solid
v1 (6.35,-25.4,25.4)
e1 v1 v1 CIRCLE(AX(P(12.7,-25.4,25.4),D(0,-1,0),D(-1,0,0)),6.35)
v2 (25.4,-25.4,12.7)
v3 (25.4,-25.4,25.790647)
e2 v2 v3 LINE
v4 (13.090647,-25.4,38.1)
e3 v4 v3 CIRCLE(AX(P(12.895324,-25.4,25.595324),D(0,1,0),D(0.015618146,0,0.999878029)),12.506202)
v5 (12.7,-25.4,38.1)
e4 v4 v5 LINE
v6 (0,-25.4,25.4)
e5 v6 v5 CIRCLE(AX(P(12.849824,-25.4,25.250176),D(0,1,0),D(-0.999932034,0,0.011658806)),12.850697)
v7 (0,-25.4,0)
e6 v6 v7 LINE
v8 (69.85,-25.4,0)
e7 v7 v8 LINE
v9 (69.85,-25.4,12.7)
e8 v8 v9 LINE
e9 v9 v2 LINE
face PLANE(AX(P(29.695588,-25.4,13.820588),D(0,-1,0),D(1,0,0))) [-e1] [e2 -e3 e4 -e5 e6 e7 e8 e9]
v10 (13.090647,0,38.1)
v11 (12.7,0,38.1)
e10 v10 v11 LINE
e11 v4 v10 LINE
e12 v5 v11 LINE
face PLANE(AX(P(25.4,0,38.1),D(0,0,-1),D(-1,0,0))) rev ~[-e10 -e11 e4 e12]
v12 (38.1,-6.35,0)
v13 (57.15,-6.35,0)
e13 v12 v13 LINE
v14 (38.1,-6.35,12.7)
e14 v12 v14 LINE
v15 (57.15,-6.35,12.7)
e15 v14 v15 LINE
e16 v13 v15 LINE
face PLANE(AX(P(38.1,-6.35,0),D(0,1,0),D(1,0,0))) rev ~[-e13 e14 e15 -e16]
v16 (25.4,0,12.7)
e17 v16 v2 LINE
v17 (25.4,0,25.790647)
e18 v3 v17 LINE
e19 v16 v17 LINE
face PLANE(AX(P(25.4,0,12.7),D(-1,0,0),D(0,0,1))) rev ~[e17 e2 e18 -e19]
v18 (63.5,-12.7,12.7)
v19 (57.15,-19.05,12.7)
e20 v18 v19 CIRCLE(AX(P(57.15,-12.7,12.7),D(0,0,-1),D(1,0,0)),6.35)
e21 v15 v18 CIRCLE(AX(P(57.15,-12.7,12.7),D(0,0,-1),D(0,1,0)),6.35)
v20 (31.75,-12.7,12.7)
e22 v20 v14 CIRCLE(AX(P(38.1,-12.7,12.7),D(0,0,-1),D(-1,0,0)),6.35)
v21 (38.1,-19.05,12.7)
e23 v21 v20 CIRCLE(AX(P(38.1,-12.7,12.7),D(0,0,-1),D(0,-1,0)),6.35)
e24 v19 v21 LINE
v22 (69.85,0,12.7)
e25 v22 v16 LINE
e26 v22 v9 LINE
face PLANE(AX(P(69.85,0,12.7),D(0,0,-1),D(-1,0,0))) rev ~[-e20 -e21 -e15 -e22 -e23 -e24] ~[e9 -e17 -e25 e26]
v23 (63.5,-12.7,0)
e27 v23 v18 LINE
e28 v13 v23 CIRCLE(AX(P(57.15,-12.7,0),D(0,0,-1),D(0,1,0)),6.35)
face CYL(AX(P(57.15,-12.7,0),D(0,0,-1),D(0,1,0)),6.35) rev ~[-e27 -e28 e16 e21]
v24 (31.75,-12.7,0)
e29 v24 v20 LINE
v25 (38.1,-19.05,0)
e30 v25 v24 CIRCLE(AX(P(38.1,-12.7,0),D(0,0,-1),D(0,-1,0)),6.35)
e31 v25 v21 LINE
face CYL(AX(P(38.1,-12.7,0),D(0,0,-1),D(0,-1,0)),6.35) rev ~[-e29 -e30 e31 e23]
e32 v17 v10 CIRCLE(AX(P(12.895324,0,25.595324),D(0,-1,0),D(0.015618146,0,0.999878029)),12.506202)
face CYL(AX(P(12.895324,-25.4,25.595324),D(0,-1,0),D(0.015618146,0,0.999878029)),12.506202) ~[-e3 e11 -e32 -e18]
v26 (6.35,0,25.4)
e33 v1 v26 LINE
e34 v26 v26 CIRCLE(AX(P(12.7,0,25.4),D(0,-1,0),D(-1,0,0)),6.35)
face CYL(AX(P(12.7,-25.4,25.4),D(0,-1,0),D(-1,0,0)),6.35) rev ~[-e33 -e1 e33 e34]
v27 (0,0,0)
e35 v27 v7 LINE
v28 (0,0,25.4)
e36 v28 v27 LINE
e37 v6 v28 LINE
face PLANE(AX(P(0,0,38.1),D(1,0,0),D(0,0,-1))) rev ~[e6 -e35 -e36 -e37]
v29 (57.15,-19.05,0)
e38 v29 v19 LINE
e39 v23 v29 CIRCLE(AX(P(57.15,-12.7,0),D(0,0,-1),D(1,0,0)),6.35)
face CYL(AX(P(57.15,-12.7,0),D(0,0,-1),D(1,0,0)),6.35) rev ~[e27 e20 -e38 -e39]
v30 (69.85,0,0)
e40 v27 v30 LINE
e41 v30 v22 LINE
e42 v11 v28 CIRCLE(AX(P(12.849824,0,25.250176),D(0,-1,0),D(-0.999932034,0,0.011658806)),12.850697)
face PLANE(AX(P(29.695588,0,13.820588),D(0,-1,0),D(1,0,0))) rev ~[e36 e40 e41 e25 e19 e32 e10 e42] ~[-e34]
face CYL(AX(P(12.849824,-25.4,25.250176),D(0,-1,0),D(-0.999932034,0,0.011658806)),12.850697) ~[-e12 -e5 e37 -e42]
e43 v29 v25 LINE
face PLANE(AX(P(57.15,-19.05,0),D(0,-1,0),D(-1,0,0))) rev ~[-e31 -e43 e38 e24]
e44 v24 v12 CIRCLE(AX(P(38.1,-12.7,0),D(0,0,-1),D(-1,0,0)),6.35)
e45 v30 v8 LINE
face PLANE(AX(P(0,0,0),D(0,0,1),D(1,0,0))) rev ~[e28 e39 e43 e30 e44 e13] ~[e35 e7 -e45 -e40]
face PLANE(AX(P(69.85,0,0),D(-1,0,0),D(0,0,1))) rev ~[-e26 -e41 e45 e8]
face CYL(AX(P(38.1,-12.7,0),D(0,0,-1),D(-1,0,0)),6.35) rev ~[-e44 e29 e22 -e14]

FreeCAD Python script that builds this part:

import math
import FreeCAD as App
import Part
import Sketcher
Q = App.Units.Quantity


def add_polygon(sketch, points):
    """Adds a closed chain of lines whose ends are joined by coincident constraints."""
    first, n = sketch.GeometryCount, len(points)
    for a, b in zip(points, points[1:] + points[:1]):
        sketch.addGeometry(Part.LineSegment(App.Vector(*a, 0), App.Vector(*b, 0)), False)
    for i in range(n):
        sketch.addConstraint(Sketcher.Constraint("Coincident", first + i, 2, first + (i + 1) % n, 1))

doc = App.newDocument("Part")
body = doc.addObject("PartDesign::Body", "Body")

# Sketch on XZ plane
sketch1 = body.newObject("Sketcher::SketchObject", "Sketch")
sketch1.AttachmentSupport = (doc.getObject("XZ_Plane"), [""])
sketch1.MapMode = "FlatFace"
add_polygon(sketch1, [(0, 38), (0, 0), (70, 0), (70, 13), (25, 13), (25, 38)])  # lines 0-5
sketch1.addConstraint(Sketcher.Constraint("Vertical", 0))
sketch1.addConstraint(Sketcher.Constraint("Horizontal", 1))
sketch1.addConstraint(Sketcher.Constraint("Vertical", 2))
sketch1.addConstraint(Sketcher.Constraint("Horizontal", 3))
sketch1.addConstraint(Sketcher.Constraint("Vertical", 4))
sketch1.addConstraint(Sketcher.Constraint("Horizontal", 5))
sketch1.addConstraint(Sketcher.Constraint("Coincident", 0, 2, -1, 1))
sketch1.addConstraint(Sketcher.Constraint("Equal", 5, 4))
sketch1.addConstraint(Sketcher.Constraint("DistanceX", 5, 2, 5, 1, Q("1 in")))
sketch1.addConstraint(Sketcher.Constraint("DistanceY", 0, 2, 0, 1, Q("1.5 in")))
sketch1.addConstraint(Sketcher.Constraint("DistanceX", 1, 1, 1, 2, Q("2.75 in")))
pad1 = body.newObject("PartDesign::Pad", "Pad")
pad1.Profile = sketch1
pad1.Length = Q("1 in")

# Sketch on XZ plane
sketch2 = body.newObject("Sketcher::SketchObject", "Sketch001")
sketch2.AttachmentSupport = (doc.getObject("XZ_Plane"), [""])
sketch2.MapMode = "FlatFace"
sketch2.AttachmentOffset = App.Placement(App.Vector(0, 0, 1 * 25.4), App.Rotation())
sketch2.addGeometry(Part.Circle(App.Vector(13, 25, 0), App.Vector(0, 0, 1), 6), False)
sketch2.addConstraint(Sketcher.Constraint("Diameter", 0, Q("0.5 in")))
sketch2.addConstraint(Sketcher.Constraint("DistanceY", -1, 1, 0, 3, Q("1 in")))
sketch2.addConstraint(Sketcher.Constraint("DistanceX", -1, 1, 0, 3, Q("0.5 in")))
pocket1 = body.newObject("PartDesign::Pocket", "Pocket")
pocket1.Profile = sketch2
pocket1.Type = "ThroughAll"

# Sketch on XZ plane
sketch3 = body.newObject("Sketcher::SketchObject", "Sketch002")
sketch3.AttachmentSupport = (doc.getObject("XZ_Plane"), [""])
sketch3.MapMode = "FlatFace"
sketch3.AttachmentOffset = App.Placement(App.Vector(0, 0, 1 * 25.4), App.Rotation())
sketch3.addGeometry(Part.ArcOfCircle(Part.Circle(App.Vector(13, 25, 0), App.Vector(0, 0, 1), 13), math.radians(91), math.radians(179)), False)
sketch3.addGeometry(Part.LineSegment(App.Vector(13, 38, 0), App.Vector(0, 38, 0)), False)
sketch3.addGeometry(Part.LineSegment(App.Vector(0, 38, 0), App.Vector(0, 25, 0)), False)
sketch3.addGeometry(Part.ArcOfCircle(Part.Circle(App.Vector(13, 26, 0), App.Vector(0, 0, 1), 13), math.radians(1), math.radians(89)), False)
sketch3.addGeometry(Part.LineSegment(App.Vector(25, 26, 0), App.Vector(25, 38, 0)), False)
sketch3.addGeometry(Part.LineSegment(App.Vector(25, 38, 0), App.Vector(13, 38, 0)), False)
sketch3.addConstraint(Sketcher.Constraint("Coincident", 0, 1, 1, 1))
sketch3.addConstraint(Sketcher.Constraint("Coincident", 1, 2, 2, 1))
sketch3.addConstraint(Sketcher.Constraint("Coincident", 2, 2, 0, 2))
sketch3.addConstraint(Sketcher.Constraint("Coincident", 3, 1, 4, 1))
sketch3.addConstraint(Sketcher.Constraint("Coincident", 4, 2, 5, 1))
sketch3.addConstraint(Sketcher.Constraint("Coincident", 5, 2, 3, 2))
sketch3.addConstraint(Sketcher.Constraint("Horizontal", 1))
sketch3.addConstraint(Sketcher.Constraint("Vertical", 2))
sketch3.addConstraint(Sketcher.Constraint("Vertical", 4))
sketch3.addConstraint(Sketcher.Constraint("Horizontal", 5))
sketch3.addConstraint(Sketcher.Constraint("PointOnObject", 1, 2, -2))
sketch3.addConstraint(Sketcher.Constraint("Horizontal", 1, 2, 4, 2))
sketch3.addConstraint(Sketcher.Constraint("Equal", 1, 2))
sketch3.addConstraint(Sketcher.Constraint("Equal", 5, 4))
sketch3.addConstraint(Sketcher.Constraint("DistanceX", 1, 2, 1, 1, Q("0.5 in")))
sketch3.addConstraint(Sketcher.Constraint("DistanceY", -1, 1, 2, 2, Q("1 in")))
sketch3.addConstraint(Sketcher.Constraint("DistanceX", -1, 1, 3, 1, Q("1 in")))
sketch3.addConstraint(Sketcher.Constraint("Radius", 3, 12.506202))
sketch3.addConstraint(Sketcher.Constraint("Radius", 0, 12.850697))
sketch3.addConstraint(Sketcher.Constraint("DistanceX", 0, 3, 3, 3, 0.0455))
pocket2 = body.newObject("PartDesign::Pocket", "Pocket001")
pocket2.Profile = sketch3
pocket2.Type = "ThroughAll"

# Sketch on XY plane
sketch4 = body.newObject("Sketcher::SketchObject", "Sketch003")
sketch4.AttachmentSupport = (doc.getObject("XY_Plane"), [""])
sketch4.MapMode = "FlatFace"
sketch4.addGeometry(Part.LineSegment(App.Vector(38, -6, 0), App.Vector(57, -6, 0)), False)
sketch4.addGeometry(Part.ArcOfCircle(Part.Circle(App.Vector(57, -13, 0), App.Vector(0, 0, 1), 6), math.radians(0), math.radians(90)), False)
sketch4.addGeometry(Part.ArcOfCircle(Part.Circle(App.Vector(57, -13, 0), App.Vector(0, 0, 1), 6), math.radians(-90), math.radians(0)), False)
sketch4.addGeometry(Part.LineSegment(App.Vector(57, -19, 0), App.Vector(38, -19, 0)), False)
sketch4.addGeometry(Part.ArcOfCircle(Part.Circle(App.Vector(38, -13, 0), App.Vector(0, 0, 1), 6), math.radians(180), math.radians(270)), False)
sketch4.addGeometry(Part.ArcOfCircle(Part.Circle(App.Vector(38, -13, 0), App.Vector(0, 0, 1), 6), math.radians(90), math.radians(180)), False)
sketch4.addConstraint(Sketcher.Constraint("Tangent", 0, 2, 1, 2))
sketch4.addConstraint(Sketcher.Constraint("Tangent", 1, 1, 2, 2))
sketch4.addConstraint(Sketcher.Constraint("Tangent", 2, 1, 3, 1))
sketch4.addConstraint(Sketcher.Constraint("Tangent", 3, 2, 4, 2))
sketch4.addConstraint(Sketcher.Constraint("Tangent", 4, 1, 5, 2))
sketch4.addConstraint(Sketcher.Constraint("Tangent", 5, 1, 0, 1))
sketch4.addConstraint(Sketcher.Constraint("Horizontal", 0))
sketch4.addConstraint(Sketcher.Constraint("Horizontal", 3))
sketch4.addConstraint(Sketcher.Constraint("Equal", 1, 2))
sketch4.addConstraint(Sketcher.Constraint("Equal", 2, 4))
sketch4.addConstraint(Sketcher.Constraint("Horizontal", 5, 3, 1, 1))
sketch4.addConstraint(Sketcher.Constraint("Horizontal", 1, 1, 4, 1))
sketch4.addConstraint(Sketcher.Constraint("Radius", 1, Q("0.25 in")))
sketch4.addConstraint(Sketcher.Constraint("DistanceX", 4, 3, 1, 1, Q("1 in")))
sketch4.addConstraint(Sketcher.Constraint("DistanceY", 1, 3, -1, 1, Q("0.5 in")))
sketch4.addConstraint(Sketcher.Constraint("DistanceX", -1, 1, 4, 3, Q("1.5 in")))
pocket3 = body.newObject("PartDesign::Pocket", "Pocket002")
pocket3.Profile = sketch4
pocket3.Type = "ThroughAll"
pocket3.Reversed = True

doc.recompute()
